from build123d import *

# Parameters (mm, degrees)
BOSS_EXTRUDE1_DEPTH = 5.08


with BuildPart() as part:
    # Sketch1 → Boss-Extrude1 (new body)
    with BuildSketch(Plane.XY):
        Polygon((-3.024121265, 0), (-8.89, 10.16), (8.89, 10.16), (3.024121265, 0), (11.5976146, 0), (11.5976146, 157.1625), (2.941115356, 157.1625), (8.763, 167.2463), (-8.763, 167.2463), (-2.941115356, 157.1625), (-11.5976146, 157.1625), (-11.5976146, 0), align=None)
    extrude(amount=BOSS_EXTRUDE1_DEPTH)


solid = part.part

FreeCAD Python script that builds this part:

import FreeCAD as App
import Part
import Sketcher
from FreeCAD import Vector
Q = App.Units.Quantity


def add_polygon(sketch, points):
    """Adds a closed chain of lines whose ends are joined by coincident constraints."""
    first, n = sketch.GeometryCount, len(points)
    for a, b in zip(points, points[1:] + points[:1]):
        sketch.addGeometry(Part.LineSegment(App.Vector(*a, 0), App.Vector(*b, 0)), False)
    for i in range(n):
        sketch.addConstraint(Sketcher.Constraint("Coincident", first + i, 2, first + (i + 1) % n, 1))

doc = App.newDocument("Part")
body = doc.addObject("PartDesign::Body", "Body")

sketch1 = doc.addObject("Sketcher::SketchObject", "Sketch")
body.addObject(sketch1)
sketch1.AttachmentSupport = (doc.XY_Plane, [""])
sketch1.MapMode = "FlatFace"
add_polygon(sketch1, [(-3, 0), (-9, 10), (9, 10), (3, 0), (12, 0), (12, 157), (3, 157), (9, 167), (-9, 167), (-3, 157), (-12, 157), (-12, 0)])
sketch1.addConstraint(Sketcher.Constraint("Horizontal", 1))
sketch1.addConstraint(Sketcher.Constraint("Horizontal", 3))
sketch1.addConstraint(Sketcher.Constraint("Vertical", 4))
sketch1.addConstraint(Sketcher.Constraint("Horizontal", 5))
sketch1.addConstraint(Sketcher.Constraint("Horizontal", 7))
sketch1.addConstraint(Sketcher.Constraint("Horizontal", 9))
sketch1.addConstraint(Sketcher.Constraint("Vertical", 10))
sketch1.addConstraint(Sketcher.Constraint("Horizontal", 11))
sketch1.addConstraint(Sketcher.Constraint("Symmetric", 3, 2, 10, 2, -1, 1))
sketch1.addConstraint(Sketcher.Constraint("Symmetric", 5, 2, 8, 2, -2))
sketch1.addConstraint(Sketcher.Constraint("Symmetric", 2, 2, 11, 2, -2))
sketch1.addConstraint(Sketcher.Constraint("Parallel", 2, 6))
sketch1.addConstraint(Sketcher.Constraint("Parallel", 0, 8))
sketch1.addConstraint(Sketcher.Constraint("Equal", 0, 2))
sketch1.addConstraint(Sketcher.Constraint("DistanceX", 1, 1, 1, 2, Q("0.7 in")))
sketch1.addConstraint(Sketcher.Constraint("Angle", 0, Q("120 deg")))
sketch1.addConstraint(Sketcher.Constraint("DistanceX", 7, 2, 7, 1, Q("0.69 in")))
sketch1.addConstraint(Sketcher.Constraint("DistanceY", -1, 1, 0, 2, Q("0.4 in")))
sketch1.addConstraint(Sketcher.Constraint("DistanceY", 4, 1, 4, 2, Q("6.1875 in")))
sketch1.addConstraint(Sketcher.Constraint("DistanceY", 4, 2, 6, 2, Q("0.397 in")))
sketch1.addConstraint(Sketcher.Constraint("DistanceX", 5, 2, 5, 1, Q("8.656499 mm")))
pad1 = doc.addObject("PartDesign::Pad", "Pad")
body.addObject(pad1)
pad1.Profile = sketch1
pad1.Length = Q("0.2 in")

doc.recompute()
